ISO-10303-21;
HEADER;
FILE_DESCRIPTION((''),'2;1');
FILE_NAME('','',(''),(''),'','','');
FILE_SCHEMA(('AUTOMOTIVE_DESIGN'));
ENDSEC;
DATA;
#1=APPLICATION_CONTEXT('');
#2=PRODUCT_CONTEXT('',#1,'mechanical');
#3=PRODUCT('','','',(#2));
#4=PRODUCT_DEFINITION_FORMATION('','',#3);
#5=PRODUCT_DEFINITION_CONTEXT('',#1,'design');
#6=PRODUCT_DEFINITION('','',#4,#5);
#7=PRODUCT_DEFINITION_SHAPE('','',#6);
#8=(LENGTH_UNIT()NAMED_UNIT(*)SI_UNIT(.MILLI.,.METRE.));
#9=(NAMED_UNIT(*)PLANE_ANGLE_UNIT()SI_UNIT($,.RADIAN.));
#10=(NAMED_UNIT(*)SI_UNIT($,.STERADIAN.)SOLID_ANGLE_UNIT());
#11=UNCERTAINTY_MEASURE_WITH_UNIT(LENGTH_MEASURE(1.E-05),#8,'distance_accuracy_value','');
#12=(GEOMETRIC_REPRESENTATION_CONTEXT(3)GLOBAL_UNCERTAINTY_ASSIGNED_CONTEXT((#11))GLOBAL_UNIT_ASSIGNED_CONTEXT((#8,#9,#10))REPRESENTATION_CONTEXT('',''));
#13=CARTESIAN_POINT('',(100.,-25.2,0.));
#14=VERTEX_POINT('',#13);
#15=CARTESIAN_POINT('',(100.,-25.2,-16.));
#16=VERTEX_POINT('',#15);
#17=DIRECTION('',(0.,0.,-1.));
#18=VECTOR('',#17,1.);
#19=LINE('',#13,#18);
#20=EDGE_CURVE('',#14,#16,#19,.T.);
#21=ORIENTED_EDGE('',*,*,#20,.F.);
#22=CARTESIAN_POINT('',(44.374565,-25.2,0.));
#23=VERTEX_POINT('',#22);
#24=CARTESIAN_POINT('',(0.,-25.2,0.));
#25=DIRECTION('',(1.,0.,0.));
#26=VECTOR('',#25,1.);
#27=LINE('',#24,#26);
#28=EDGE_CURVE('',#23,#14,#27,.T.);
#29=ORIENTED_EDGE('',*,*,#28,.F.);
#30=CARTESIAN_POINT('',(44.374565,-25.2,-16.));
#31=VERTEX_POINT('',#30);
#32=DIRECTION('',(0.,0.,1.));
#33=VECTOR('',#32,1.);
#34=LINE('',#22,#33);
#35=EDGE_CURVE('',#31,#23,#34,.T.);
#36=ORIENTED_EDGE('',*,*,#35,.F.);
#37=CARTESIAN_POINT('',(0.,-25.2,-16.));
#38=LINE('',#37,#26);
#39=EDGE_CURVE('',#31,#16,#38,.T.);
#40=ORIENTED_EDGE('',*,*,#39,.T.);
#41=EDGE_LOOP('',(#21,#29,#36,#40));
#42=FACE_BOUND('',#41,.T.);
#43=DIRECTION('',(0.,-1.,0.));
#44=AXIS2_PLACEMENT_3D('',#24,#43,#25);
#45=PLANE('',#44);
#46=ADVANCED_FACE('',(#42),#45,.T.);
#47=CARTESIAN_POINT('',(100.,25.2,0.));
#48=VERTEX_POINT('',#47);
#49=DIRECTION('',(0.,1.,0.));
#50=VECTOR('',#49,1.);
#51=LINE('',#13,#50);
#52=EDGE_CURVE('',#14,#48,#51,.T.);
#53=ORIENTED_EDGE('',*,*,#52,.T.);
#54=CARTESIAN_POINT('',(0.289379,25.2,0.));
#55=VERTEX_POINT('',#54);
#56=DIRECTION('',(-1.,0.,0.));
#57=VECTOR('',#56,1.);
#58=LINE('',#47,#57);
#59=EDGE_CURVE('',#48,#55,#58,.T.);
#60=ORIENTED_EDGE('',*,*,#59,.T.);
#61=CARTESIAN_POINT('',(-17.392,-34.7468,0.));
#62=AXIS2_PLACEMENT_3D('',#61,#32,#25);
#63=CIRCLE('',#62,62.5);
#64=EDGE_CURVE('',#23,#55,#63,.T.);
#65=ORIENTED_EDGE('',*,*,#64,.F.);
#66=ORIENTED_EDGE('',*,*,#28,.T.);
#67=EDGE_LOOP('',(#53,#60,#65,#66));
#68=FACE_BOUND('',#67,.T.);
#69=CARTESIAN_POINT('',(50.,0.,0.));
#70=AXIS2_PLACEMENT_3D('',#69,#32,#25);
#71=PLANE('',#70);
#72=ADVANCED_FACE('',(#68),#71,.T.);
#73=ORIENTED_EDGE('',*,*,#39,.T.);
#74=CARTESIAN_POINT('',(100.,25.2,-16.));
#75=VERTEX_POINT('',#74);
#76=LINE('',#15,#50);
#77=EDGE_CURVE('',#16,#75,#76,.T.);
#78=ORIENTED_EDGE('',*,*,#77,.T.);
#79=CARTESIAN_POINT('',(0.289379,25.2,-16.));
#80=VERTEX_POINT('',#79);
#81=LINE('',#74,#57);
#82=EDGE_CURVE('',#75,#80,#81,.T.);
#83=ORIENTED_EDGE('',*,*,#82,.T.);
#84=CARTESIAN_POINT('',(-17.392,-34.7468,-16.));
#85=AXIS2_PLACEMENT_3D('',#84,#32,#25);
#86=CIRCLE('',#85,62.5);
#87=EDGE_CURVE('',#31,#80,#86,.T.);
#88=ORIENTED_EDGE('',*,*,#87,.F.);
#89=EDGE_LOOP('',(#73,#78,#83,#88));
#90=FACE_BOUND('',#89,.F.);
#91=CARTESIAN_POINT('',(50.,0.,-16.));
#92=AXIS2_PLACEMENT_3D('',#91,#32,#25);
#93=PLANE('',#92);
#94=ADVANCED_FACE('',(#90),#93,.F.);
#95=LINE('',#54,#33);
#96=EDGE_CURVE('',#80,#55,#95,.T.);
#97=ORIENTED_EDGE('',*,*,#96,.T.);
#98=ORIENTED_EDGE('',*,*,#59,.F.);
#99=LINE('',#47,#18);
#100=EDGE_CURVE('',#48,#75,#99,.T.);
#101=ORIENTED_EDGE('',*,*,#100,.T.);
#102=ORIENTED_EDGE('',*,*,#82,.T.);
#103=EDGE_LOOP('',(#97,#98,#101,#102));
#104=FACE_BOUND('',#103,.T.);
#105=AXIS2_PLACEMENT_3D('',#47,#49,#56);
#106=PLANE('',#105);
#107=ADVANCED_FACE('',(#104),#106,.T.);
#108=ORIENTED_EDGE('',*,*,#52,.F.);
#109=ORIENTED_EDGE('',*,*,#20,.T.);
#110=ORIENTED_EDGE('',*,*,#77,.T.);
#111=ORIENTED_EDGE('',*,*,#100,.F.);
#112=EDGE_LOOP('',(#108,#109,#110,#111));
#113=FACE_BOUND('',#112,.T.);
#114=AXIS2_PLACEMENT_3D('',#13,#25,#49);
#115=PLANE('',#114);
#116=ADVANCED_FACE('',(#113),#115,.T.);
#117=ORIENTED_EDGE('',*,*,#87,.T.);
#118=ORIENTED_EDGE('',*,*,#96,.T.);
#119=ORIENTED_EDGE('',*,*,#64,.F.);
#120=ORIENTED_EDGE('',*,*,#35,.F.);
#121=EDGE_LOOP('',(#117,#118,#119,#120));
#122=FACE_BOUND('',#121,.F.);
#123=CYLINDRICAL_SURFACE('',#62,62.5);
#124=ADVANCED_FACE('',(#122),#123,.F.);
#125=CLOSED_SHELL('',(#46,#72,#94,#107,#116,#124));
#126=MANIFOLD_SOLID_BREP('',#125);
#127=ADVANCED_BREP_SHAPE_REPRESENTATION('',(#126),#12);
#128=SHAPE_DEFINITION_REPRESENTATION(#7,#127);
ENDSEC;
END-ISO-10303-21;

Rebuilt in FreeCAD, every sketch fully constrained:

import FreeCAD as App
import Part
import Sketcher

V = App.Vector


def add_polygon(sketch, points):
    """Adds a closed chain of lines whose ends are joined by coincident constraints."""
    first, n = sketch.GeometryCount, len(points)
    for a, b in zip(points, points[1:] + points[:1]):
        sketch.addGeometry(Part.LineSegment(App.Vector(*a, 0), App.Vector(*b, 0)), False)
    for i in range(n):
        sketch.addConstraint(Sketcher.Constraint("Coincident", first + i, 2, first + (i + 1) % n, 1))

doc = App.newDocument("Part")
body = doc.addObject("PartDesign::Body", "Body")

sketch1 = doc.addObject("Sketcher::SketchObject", "Sketch")
body.addObject(sketch1)
sketch1.AttachmentSupport = (doc.XY_Plane, [""])
sketch1.MapMode = "FlatFace"
add_polygon(sketch1, [(0, 25.2), (0, -25.2), (100, -25.2), (100, 25.2)])
sketch1.addConstraint([
    Sketcher.Constraint("Vertical", 0),
    Sketcher.Constraint("Horizontal", 1),
    Sketcher.Constraint("Vertical", 2),
    Sketcher.Constraint("Horizontal", 3),
    Sketcher.Constraint("Symmetric", 0, 2, 3, 2, -1, 1),
    Sketcher.Constraint("DistanceX", 1, 1, 1, 2, 100.0),
    Sketcher.Constraint("DistanceY", 0, 2, 0, 1, 50.4),
])
pad1 = doc.addObject("PartDesign::Pad", "Pad")
body.addObject(pad1)
pad1.Profile = sketch1
pad1.Length = 16
pad1.Reversed = True

sketch2 = doc.addObject("Sketcher::SketchObject", "Sketch001")
body.addObject(sketch2)
sketch2.AttachmentSupport = (doc.XY_Plane, [""])
sketch2.MapMode = "FlatFace"
sketch2.addGeometry(Part.Circle(V(-17.392, -34.7468, 0), V(0, 0, 1), 62.5), False)
sketch2.addConstraint([
    Sketcher.Constraint("Diameter", 0, 125.0),
    Sketcher.Constraint("DistanceX", 0, 3, -1, 1, 17.392),
    Sketcher.Constraint("DistanceY", 0, 3, -1, 1, 34.7468),
])
pocket1 = doc.addObject("PartDesign::Pocket", "Pocket")
body.addObject(pocket1)
pocket1.Profile = sketch2
pocket1.Length = 16

doc.recompute()
